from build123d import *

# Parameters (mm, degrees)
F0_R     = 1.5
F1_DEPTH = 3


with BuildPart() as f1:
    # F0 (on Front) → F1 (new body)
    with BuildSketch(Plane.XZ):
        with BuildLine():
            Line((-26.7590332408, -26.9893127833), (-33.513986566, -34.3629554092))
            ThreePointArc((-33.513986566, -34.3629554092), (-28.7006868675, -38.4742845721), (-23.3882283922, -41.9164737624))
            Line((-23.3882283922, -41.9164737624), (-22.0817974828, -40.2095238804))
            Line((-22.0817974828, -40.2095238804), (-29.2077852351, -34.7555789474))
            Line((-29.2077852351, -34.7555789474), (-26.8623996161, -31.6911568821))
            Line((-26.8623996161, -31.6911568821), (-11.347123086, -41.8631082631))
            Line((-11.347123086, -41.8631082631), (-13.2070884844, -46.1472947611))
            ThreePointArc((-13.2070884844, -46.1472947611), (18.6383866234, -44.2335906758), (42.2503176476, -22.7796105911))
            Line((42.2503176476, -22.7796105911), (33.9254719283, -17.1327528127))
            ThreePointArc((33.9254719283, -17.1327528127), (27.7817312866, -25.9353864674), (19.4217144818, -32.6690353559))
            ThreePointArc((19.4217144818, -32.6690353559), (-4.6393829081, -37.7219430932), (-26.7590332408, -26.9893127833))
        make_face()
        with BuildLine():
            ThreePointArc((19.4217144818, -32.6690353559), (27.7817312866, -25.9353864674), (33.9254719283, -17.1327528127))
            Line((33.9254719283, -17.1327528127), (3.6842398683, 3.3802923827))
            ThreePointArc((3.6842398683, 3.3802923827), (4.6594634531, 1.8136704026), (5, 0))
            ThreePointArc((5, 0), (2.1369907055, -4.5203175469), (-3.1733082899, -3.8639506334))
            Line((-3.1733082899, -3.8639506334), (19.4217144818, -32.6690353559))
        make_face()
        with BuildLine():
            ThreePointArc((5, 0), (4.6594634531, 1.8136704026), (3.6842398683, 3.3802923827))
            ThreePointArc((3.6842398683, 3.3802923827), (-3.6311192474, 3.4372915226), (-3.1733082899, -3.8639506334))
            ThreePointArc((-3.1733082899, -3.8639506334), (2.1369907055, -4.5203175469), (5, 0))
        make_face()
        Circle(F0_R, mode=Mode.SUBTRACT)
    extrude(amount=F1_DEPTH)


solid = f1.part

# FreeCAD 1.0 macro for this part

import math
import FreeCAD as App
import Part
import Sketcher
from FreeCAD import Vector

doc = App.newDocument("Part")
body = doc.addObject("PartDesign::Body", "Body")

sketch1 = body.newObject("Sketcher::SketchObject", "Sketch")
sketch1.AttachmentSupport = (doc.getObject("XZ_Plane"), [""])
sketch1.MapMode = "FlatFace"
sketch1.addGeometry(Part.LineSegment(Vector(-26.8, -27, 0), Vector(-33.5, -34.4, 0)), False)
sketch1.addGeometry(Part.ArcOfCircle(Part.Circle(Vector(0, 0, 0), Vector(0, 0, 1), 48), math.radians(-134.28), math.radians(-119.16)), False)
sketch1.addGeometry(Part.LineSegment(Vector(-23.4, -41.9, 0), Vector(-22.1, -40.2, 0)), False)
sketch1.addGeometry(Part.LineSegment(Vector(-22.1, -40.2, 0), Vector(-29.2, -34.8, 0)), False)
sketch1.addGeometry(Part.LineSegment(Vector(-29.2, -34.8, 0), Vector(-26.9, -31.7, 0)), False)
sketch1.addGeometry(Part.LineSegment(Vector(-26.9, -31.7, 0), Vector(-11.3, -41.9, 0)), False)
sketch1.addGeometry(Part.LineSegment(Vector(-11.3, -41.9, 0), Vector(-13.2, -46.1, 0)), False)
sketch1.addGeometry(Part.ArcOfCircle(Part.Circle(Vector(0, 0, 0), Vector(0, 0, 1), 48), math.radians(-106), math.radians(-28)), False)
sketch1.addGeometry(Part.LineSegment(Vector(42.3, -22.8, 0), Vector(33.9, -17.1, 0)), False)
sketch1.addGeometry(Part.LineSegment(Vector(33.9, -17.1, 0), Vector(3.7, 3.4, 0)), False)
sketch1.addGeometry(Part.ArcOfCircle(Part.Circle(Vector(0, 0, 0), Vector(0, 0, 1), 5), math.radians(43), math.radians(231)), False)
sketch1.addGeometry(Part.LineSegment(Vector(-3.2, -3.9, 0), Vector(19.4, -32.7, 0)), False)
sketch1.addGeometry(Part.ArcOfCircle(Part.Circle(Vector(0, 0, 0), Vector(0, 0, 1), 38), math.radians(-135), math.radians(-59)), False)
sketch1.addGeometry(Part.Circle(Vector(0, 0, 0), Vector(0, 0, 1), 1.5), False)
sketch1.addConstraint(Sketcher.Constraint("Coincident", 0, 2, 1, 1))
sketch1.addConstraint(Sketcher.Constraint("Coincident", 1, 2, 2, 1))
sketch1.addConstraint(Sketcher.Constraint("Coincident", 2, 2, 3, 1))
sketch1.addConstraint(Sketcher.Constraint("Coincident", 3, 2, 4, 1))
sketch1.addConstraint(Sketcher.Constraint("Coincident", 4, 2, 5, 1))
sketch1.addConstraint(Sketcher.Constraint("Coincident", 5, 2, 6, 1))
sketch1.addConstraint(Sketcher.Constraint("Coincident", 6, 2, 7, 1))
sketch1.addConstraint(Sketcher.Constraint("Coincident", 7, 2, 8, 1))
sketch1.addConstraint(Sketcher.Constraint("Coincident", 8, 2, 9, 1))
sketch1.addConstraint(Sketcher.Constraint("Coincident", 9, 2, 10, 1))
sketch1.addConstraint(Sketcher.Constraint("Coincident", 10, 2, 11, 1))
sketch1.addConstraint(Sketcher.Constraint("Coincident", 11, 2, 12, 2))
sketch1.addConstraint(Sketcher.Constraint("Coincident", 12, 1, 0, 1))
sketch1.addConstraint(Sketcher.Constraint("Coincident", 1, 3, -1, 1))
sketch1.addConstraint(Sketcher.Constraint("Coincident", 7, 3, -1, 1))
sketch1.addConstraint(Sketcher.Constraint("Coincident", 10, 3, -1, 1))
sketch1.addConstraint(Sketcher.Constraint("Coincident", 12, 3, -1, 1))
sketch1.addConstraint(Sketcher.Constraint("Coincident", 13, 3, -1, 1))
sketch1.addConstraint(Sketcher.Constraint("Equal", 1, 7))
sketch1.addConstraint(Sketcher.Constraint("Perpendicular", 2, 3))
sketch1.addConstraint(Sketcher.Constraint("Perpendicular", 3, 4))
sketch1.addConstraint(Sketcher.Constraint("Parallel", 8, 9))
sketch1.addConstraint(Sketcher.Constraint("Diameter", 13, 3.0))
sketch1.addConstraint(Sketcher.Constraint("Radius", 1, 48.0))
sketch1.addConstraint(Sketcher.Constraint("Radius", 10, 5.0))
sketch1.addConstraint(Sketcher.Constraint("Distance", 0, 10.0))
sketch1.addConstraint(Sketcher.Constraint("Radius", 12, 38.006169))
sketch1.addConstraint(Sketcher.Constraint("DistanceX", 4, 2, -1, 1, 26.8624))
sketch1.addConstraint(Sketcher.Constraint("DistanceX", 0, 2, 3, 2, 4.306201))
sketch1.addConstraint(Sketcher.Constraint("DistanceY", 0, 2, 4, 2, 2.671799))
sketch1.addConstraint(Sketcher.Constraint("Distance", 2, 2.149521))
sketch1.addConstraint(Sketcher.Constraint("Distance", 9, 36.541991))
sketch1.addConstraint(Sketcher.Constraint("Distance", 11, 36.60967))
sketch1.addConstraint(Sketcher.Constraint("DistanceX", 1, 2, -1, 1, 23.388228))
sketch1.addConstraint(Sketcher.Constraint("DistanceY", 3, 2, -1, 1, 34.755579))
sketch1.addConstraint(Sketcher.Constraint("DistanceY", 5, 2, -1, 1, 41.863108))
sketch1.addConstraint(Sketcher.Constraint("DistanceX", 6, 2, -1, 1, 13.207088))
sketch1.addConstraint(Sketcher.Constraint("DistanceY", 7, 2, -1, 1, 22.779611))
sketch1.addConstraint(Sketcher.Constraint("DistanceX", -1, 1, 8, 2, 33.925472))
sketch1.addConstraint(Sketcher.Constraint("DistanceX", 10, 2, -1, 1, 3.173308))
sketch1.addConstraint(Sketcher.Constraint("Distance", 5, 18.552423))
pad1 = body.newObject("PartDesign::Pad", "Pad")
pad1.Profile = sketch1
pad1.Length = 3

doc.recompute()
